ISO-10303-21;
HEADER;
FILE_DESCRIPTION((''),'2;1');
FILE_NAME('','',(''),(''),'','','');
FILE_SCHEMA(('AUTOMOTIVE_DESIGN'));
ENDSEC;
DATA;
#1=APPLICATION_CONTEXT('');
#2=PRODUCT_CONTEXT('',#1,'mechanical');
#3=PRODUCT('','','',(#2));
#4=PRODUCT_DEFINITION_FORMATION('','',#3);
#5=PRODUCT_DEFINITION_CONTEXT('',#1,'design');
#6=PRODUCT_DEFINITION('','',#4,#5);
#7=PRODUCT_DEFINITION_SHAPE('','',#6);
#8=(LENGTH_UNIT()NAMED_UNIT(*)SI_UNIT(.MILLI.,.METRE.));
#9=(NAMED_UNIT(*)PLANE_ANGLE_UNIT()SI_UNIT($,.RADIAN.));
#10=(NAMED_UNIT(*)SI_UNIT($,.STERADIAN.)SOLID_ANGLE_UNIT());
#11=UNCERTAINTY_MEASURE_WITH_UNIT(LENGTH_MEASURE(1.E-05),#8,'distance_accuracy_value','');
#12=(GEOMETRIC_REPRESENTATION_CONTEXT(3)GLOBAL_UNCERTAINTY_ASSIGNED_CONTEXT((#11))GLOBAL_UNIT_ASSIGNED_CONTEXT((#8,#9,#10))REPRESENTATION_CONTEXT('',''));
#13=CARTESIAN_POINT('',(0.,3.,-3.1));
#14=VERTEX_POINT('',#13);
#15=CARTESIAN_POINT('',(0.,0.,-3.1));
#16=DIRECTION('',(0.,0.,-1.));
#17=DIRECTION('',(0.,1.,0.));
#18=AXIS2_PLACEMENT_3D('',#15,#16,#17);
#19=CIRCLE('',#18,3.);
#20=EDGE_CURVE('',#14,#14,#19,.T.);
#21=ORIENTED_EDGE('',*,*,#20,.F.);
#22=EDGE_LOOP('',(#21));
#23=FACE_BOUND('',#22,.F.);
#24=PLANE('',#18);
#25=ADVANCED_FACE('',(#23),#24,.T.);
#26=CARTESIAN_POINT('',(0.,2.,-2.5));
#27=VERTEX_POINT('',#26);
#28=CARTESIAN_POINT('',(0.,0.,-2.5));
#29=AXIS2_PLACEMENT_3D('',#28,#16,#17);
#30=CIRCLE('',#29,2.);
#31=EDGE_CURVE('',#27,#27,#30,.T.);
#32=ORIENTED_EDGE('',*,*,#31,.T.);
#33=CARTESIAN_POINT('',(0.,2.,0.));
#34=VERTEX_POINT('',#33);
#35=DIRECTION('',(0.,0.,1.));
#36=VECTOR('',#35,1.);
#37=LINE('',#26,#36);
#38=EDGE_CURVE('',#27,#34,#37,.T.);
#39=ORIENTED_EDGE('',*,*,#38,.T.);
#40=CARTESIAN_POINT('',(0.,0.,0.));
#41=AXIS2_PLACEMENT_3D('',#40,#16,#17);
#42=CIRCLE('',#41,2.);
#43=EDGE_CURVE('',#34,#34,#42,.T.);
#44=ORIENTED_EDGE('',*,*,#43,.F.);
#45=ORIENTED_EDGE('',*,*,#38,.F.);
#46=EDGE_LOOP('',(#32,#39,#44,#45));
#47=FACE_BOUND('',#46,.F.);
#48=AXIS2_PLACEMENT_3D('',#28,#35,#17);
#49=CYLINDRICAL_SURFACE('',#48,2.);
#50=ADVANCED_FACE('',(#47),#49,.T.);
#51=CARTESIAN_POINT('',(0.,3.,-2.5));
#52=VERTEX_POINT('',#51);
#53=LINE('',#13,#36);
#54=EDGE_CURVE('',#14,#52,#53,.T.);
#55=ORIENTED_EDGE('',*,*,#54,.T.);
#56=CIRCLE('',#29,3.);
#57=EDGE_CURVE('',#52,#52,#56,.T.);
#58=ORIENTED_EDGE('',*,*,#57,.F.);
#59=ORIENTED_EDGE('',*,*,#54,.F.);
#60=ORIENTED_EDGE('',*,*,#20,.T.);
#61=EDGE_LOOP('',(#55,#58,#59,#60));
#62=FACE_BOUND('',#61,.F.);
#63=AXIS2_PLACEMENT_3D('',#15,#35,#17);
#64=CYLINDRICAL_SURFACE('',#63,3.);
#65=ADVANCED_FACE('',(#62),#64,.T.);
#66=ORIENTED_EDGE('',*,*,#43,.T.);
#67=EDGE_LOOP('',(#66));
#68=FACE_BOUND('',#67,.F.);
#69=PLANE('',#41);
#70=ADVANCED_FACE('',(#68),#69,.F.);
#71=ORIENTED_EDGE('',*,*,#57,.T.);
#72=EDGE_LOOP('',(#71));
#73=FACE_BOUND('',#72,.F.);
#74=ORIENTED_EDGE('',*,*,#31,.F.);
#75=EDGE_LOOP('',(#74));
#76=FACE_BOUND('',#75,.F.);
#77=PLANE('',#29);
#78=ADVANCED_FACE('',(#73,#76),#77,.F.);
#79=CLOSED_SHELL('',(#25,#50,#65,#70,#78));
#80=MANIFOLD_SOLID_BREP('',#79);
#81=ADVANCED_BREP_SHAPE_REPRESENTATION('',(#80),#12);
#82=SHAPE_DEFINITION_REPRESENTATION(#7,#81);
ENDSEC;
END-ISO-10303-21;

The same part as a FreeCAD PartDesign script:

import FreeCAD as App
import Part
import Sketcher


def add_polygon(sketch, points):
    """Adds a closed chain of lines whose ends are joined by coincident constraints."""
    first, n = sketch.GeometryCount, len(points)
    for a, b in zip(points, points[1:] + points[:1]):
        sketch.addGeometry(Part.LineSegment(App.Vector(*a, 0), App.Vector(*b, 0)), False)
    for i in range(n):
        sketch.addConstraint(Sketcher.Constraint("Coincident", first + i, 2, first + (i + 1) % n, 1))

doc = App.newDocument("Part")
params = doc.addObject("Spreadsheet::Sheet", "Params")
for row, (alias, value) in enumerate([
    ("sketch1_height", "0.6 mm"),
    ("sketch1_height2", "2.5 mm"),
    ("sketch1_width", "2 mm"),
    ("sketch1_width2", "3 mm"),
    ("revolution_angle", "360 deg"),
], start=1):
    params.set(f"A{row}", alias)
    params.set(f"B{row}", "=" + value)
    params.setAlias(f"B{row}", alias)

body = doc.addObject("PartDesign::Body", "Body")

# Sketch on YZ plane
sketch1 = body.newObject("Sketcher::SketchObject", "Sketch")
sketch1.AttachmentSupport = (doc.getObject("YZ_Plane"), [""])
sketch1.MapMode = "FlatFace"
add_polygon(sketch1, [(2, 0), (0, 0), (0, -3.1), (3, -3.1), (3, -2.5), (2, -2.5)])  # lines 0-5
sketch1.addConstraint([
    Sketcher.Constraint("Horizontal", 0),
    Sketcher.Constraint("Vertical", 1),
    Sketcher.Constraint("Horizontal", 2),
    Sketcher.Constraint("Vertical", 3),
    Sketcher.Constraint("Horizontal", 4),
    Sketcher.Constraint("Vertical", 5),
    Sketcher.Constraint("Coincident", 0, 2, -1, 1),
    Sketcher.Constraint("DistanceY", 3, 1, 3, 2, 0.6),
    Sketcher.Constraint("DistanceY", 5, 1, 5, 2, 2.5),
    Sketcher.Constraint("DistanceX", 0, 2, 0, 1, 2.0),
    Sketcher.Constraint("DistanceX", 2, 1, 2, 2, 3.0),
])
sketch1.setExpression("Constraints[13]", "Params.sketch1_height")
sketch1.setExpression("Constraints[14]", "Params.sketch1_height2")
sketch1.setExpression("Constraints[15]", "Params.sketch1_width")
sketch1.setExpression("Constraints[16]", "Params.sketch1_width2")
revolution = body.newObject("PartDesign::Revolution", "Revolution")
revolution.Profile = sketch1
revolution.ReferenceAxis = (sketch1, ["V_Axis"])
revolution.setExpression("Angle", "Params.revolution_angle")

doc.recompute()
